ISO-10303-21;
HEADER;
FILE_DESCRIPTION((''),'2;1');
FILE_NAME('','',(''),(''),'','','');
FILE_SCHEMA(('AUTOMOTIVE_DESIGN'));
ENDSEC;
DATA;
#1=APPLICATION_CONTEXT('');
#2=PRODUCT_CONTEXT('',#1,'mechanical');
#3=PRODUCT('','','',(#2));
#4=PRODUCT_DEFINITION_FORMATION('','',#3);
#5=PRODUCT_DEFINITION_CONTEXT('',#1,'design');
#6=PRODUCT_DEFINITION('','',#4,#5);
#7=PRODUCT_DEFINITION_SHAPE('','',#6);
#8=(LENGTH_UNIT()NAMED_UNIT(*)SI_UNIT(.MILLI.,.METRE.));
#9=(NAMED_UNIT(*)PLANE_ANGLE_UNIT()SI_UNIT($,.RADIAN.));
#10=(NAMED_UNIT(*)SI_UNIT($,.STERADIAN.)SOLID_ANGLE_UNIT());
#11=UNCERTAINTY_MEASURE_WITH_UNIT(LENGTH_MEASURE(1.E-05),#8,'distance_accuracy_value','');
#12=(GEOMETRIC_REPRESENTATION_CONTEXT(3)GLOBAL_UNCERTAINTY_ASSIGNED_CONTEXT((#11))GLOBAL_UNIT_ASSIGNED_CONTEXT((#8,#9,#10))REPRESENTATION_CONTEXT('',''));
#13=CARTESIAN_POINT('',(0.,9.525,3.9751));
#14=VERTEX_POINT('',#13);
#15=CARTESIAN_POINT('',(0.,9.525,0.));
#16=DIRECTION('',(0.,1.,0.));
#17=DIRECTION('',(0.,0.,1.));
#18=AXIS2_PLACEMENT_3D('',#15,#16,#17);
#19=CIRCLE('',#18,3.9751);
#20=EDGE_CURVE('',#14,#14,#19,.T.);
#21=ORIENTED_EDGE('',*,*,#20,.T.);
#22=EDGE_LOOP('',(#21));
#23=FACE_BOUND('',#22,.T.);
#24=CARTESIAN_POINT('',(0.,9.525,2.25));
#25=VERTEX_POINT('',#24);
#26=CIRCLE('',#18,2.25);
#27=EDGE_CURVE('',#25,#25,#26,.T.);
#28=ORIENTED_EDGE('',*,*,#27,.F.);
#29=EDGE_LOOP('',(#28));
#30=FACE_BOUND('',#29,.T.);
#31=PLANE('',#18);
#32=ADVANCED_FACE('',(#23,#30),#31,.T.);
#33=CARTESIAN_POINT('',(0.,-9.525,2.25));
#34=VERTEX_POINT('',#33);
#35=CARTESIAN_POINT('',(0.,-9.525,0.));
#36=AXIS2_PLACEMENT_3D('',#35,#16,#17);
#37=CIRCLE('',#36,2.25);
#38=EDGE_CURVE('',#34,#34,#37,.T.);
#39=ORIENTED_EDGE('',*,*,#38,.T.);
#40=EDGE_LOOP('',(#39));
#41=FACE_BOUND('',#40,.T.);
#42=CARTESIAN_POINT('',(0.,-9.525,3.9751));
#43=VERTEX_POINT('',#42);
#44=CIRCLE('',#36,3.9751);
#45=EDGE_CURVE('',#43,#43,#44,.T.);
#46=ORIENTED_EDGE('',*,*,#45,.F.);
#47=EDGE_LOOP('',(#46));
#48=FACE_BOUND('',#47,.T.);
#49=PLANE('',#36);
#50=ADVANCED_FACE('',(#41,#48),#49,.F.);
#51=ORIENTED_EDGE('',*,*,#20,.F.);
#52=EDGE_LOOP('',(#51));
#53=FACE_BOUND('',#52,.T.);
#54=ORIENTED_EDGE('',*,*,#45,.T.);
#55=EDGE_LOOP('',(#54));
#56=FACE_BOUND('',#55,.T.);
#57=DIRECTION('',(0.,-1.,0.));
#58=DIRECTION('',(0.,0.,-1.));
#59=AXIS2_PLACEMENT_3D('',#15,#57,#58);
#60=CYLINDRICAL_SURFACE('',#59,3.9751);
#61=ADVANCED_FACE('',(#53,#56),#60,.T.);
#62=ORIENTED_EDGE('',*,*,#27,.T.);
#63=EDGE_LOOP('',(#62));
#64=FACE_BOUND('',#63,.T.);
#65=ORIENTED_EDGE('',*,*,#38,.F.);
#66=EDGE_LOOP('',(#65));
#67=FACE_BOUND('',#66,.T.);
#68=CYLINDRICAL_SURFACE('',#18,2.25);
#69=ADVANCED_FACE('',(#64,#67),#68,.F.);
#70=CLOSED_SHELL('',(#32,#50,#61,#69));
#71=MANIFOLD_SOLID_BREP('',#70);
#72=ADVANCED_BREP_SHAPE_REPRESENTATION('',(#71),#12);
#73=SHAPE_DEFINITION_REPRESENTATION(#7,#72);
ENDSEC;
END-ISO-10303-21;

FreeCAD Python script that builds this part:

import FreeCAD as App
import Part
import Sketcher

V = App.Vector
Q = App.Units.Quantity

doc = App.newDocument("Part")
params = doc.addObject("Spreadsheet::Sheet", "Params")
for row, (alias, value) in enumerate([
    ("sketch1_diameter", "0.313 in"),
    ("pad1_length", "0.75 in"),
    ("hole_diameter", "4.5 mm"),
], start=1):
    params.set(f"A{row}", alias)
    params.set(f"B{row}", "=" + value)
    params.setAlias(f"B{row}", alias)

body = doc.addObject("PartDesign::Body", "Body")

sketch1 = body.newObject("Sketcher::SketchObject", "Sketch")
sketch1.AttachmentSupport = (doc.getObject("XZ_Plane"), [""])
sketch1.MapMode = "FlatFace"
sketch1.addGeometry(Part.Circle(V(0, 0, 0), V(0, 0, 1), 4), False)
sketch1.addConstraint([
    Sketcher.Constraint("Coincident", 0, 3, -1, 1),
    Sketcher.Constraint("Diameter", 0, Q("0.313 in")),
])
sketch1.setExpression("Constraints[1]", "Params.sketch1_diameter")
pad1 = body.newObject("PartDesign::Pad", "Pad")
pad1.Profile = sketch1
pad1.setExpression("Length", "Params.pad1_length")
pad1.Midplane = True

sketch2 = body.newObject("Sketcher::SketchObject", "Sketch001")
sketch2.AttachmentSupport = (doc.getObject("XZ_Plane"), [""])
sketch2.MapMode = "FlatFace"
sketch2.AttachmentOffset = App.Placement(V(0, 0, -0.375 * 25.4), App.Rotation())
sketch2.addGeometry(Part.Circle(V(0, 0, 0), V(0, 0, 1), 2.2), False)
sketch2.addConstraint([
    Sketcher.Constraint("Coincident", 0, 3, -1, 1),
    Sketcher.Constraint("Diameter", 0, Q("4.5 mm")),
])
doc.recompute()
hole = body.newObject("PartDesign::Hole", "Hole")
hole.Profile = sketch2
hole.ThreadType = "None"
hole.setExpression("Diameter", "Params.hole_diameter")
hole.DepthType = "ThroughAll"
hole.Reversed = True

doc.recompute()
